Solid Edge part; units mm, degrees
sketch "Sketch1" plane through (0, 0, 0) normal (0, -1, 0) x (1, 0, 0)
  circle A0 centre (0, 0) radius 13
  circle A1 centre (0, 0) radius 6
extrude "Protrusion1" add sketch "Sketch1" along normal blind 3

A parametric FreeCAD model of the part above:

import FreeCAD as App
import Part
import Sketcher

doc = App.newDocument("Part")
body = doc.addObject("PartDesign::Body", "Body")

sketch1 = body.newObject("Sketcher::SketchObject", "Sketch")
sketch1.AttachmentSupport = (doc.getObject("XZ_Plane"), [""])
sketch1.MapMode = "FlatFace"
sketch1.addGeometry([
    Part.Circle(App.Vector(0, 0, 0), App.Vector(0, 0, 1), 13),
    Part.Circle(App.Vector(0, 0, 0), App.Vector(0, 0, 1), 6),
], False)
sketch1.addConstraint([
    Sketcher.Constraint("Coincident", 0, 3, -1, 1),
    Sketcher.Constraint("Coincident", 1, 3, -1, 1),
    Sketcher.Constraint("Diameter", 0, 26.0),
    Sketcher.Constraint("Diameter", 1, 12.0),
])
pad1 = body.newObject("PartDesign::Pad", "Pad")
pad1.Profile = sketch1
pad1.Length = 3

doc.recompute()
